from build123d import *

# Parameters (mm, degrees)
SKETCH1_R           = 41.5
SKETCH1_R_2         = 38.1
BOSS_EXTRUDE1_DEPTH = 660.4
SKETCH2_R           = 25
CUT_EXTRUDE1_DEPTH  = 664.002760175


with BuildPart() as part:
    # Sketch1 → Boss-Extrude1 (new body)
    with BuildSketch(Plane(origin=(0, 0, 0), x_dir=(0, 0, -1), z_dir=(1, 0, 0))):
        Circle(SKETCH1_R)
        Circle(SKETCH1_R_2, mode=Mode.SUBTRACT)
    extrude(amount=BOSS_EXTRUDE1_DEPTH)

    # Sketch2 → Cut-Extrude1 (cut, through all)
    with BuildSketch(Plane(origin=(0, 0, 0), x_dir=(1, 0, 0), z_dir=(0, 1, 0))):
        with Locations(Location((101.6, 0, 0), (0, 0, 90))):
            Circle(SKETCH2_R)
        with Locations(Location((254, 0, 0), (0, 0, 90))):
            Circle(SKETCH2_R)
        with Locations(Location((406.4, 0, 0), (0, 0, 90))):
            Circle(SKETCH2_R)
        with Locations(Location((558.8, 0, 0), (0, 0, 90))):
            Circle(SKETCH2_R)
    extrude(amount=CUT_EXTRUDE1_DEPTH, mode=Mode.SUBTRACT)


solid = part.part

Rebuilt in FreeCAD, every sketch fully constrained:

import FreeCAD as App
import Part
import Sketcher

V = App.Vector
Q = App.Units.Quantity

doc = App.newDocument("Part")
body = doc.addObject("PartDesign::Body", "Body")

sketch1 = body.newObject("Sketcher::SketchObject", "Sketch")
sketch1.AttachmentSupport = (doc.getObject("YZ_Plane"), [""])
sketch1.MapMode = "FlatFace"
sketch1.addGeometry([
    Part.Circle(V(0, 0, 0), V(0, 0, 1), 41.5),
    Part.Circle(V(0, 0, 0), V(0, 0, 1), 38.1),
], False)
sketch1.addConstraint([
    Sketcher.Constraint("Coincident", 0, 3, -1, 1),
    Sketcher.Constraint("Coincident", 1, 3, -1, 1),
    Sketcher.Constraint("Diameter", 0, Q("83 mm")),
    Sketcher.Constraint("Diameter", 1, Q("76.2 mm")),
])
pad1 = body.newObject("PartDesign::Pad", "Pad")
pad1.Profile = sketch1
pad1.Length = 660.4

sketch2 = body.newObject("Sketcher::SketchObject", "Sketch001")
sketch2.AttachmentSupport = (doc.getObject("XZ_Plane"), [""])
sketch2.MapMode = "FlatFace"
sketch2.addGeometry([
    Part.Circle(V(101.6, 0, 0), V(0, 0, 1), 25),
    Part.Circle(V(254, 0, 0), V(0, 0, 1), 25),
    Part.Circle(V(406.4, 0, 0), V(0, 0, 1), 25),
    Part.Circle(V(558.8, 0, 0), V(0, 0, 1), 25),
], False)
sketch2.addConstraint([
    Sketcher.Constraint("Equal", 0, 1),
    Sketcher.Constraint("Equal", 1, 2),
    Sketcher.Constraint("Equal", 2, 3),
    Sketcher.Constraint("PointOnObject", 0, 3, -1),
    Sketcher.Constraint("PointOnObject", 1, 3, -1),
    Sketcher.Constraint("PointOnObject", 2, 3, -1),
    Sketcher.Constraint("PointOnObject", 3, 3, -1),
    Sketcher.Constraint("Diameter", 0, Q("50 mm")),
    Sketcher.Constraint("DistanceX", -1, 1, 1, 3, Q("254 mm")),
    Sketcher.Constraint("DistanceX", -1, 1, 0, 3, Q("101.6 mm")),
    Sketcher.Constraint("DistanceX", -1, 1, 2, 3, Q("406.4 mm")),
    Sketcher.Constraint("DistanceX", -1, 1, 3, 3, Q("558.8 mm")),
])
pocket1 = body.newObject("PartDesign::Pocket", "Pocket")
pocket1.Profile = sketch2
pocket1.Type = "ThroughAll"

doc.recompute()
